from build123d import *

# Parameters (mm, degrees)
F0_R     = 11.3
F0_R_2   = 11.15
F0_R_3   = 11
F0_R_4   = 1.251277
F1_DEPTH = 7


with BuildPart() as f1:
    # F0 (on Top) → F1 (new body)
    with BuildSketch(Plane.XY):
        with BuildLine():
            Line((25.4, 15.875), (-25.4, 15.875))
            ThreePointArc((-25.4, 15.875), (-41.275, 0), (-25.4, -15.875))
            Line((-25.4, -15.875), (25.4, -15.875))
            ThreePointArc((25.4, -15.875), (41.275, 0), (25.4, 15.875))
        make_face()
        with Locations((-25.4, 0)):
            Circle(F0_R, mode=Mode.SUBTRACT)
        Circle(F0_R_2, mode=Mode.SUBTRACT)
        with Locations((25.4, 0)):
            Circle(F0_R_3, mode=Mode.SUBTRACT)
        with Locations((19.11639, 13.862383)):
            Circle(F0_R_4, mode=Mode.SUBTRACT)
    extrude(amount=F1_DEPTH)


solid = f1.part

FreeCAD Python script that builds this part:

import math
import FreeCAD as App
import Part
import Sketcher
from FreeCAD import Vector

doc = App.newDocument("Part")
body = doc.addObject("PartDesign::Body", "Body")

# Sketch on XY plane
sketch1 = body.newObject("Sketcher::SketchObject", "Sketch")
sketch1.AttachmentSupport = (doc.getObject("XY_Plane"), [""])
sketch1.MapMode = "FlatFace"
sketch1.addGeometry([
    Part.LineSegment(Vector(25.4, 15.9, 0), Vector(-25.4, 15.9, 0)),  # 0
    Part.ArcOfCircle(Part.Circle(Vector(-25.4, 0, 0), Vector(0, 0, 1), 15.9), math.radians(90), math.radians(270)),  # 1
    Part.LineSegment(Vector(-25.4, -15.9, 0), Vector(25.4, -15.9, 0)),  # 2
    Part.ArcOfCircle(Part.Circle(Vector(25.4, 0, 0), Vector(0, 0, 1), 15.9), math.radians(-90), math.radians(90)),  # 3
    Part.Circle(Vector(-25.4, 0, 0), Vector(0, 0, 1), 11.3),  # 4
    Part.Circle(Vector(0, 0, 0), Vector(0, 0, 1), 11.2),  # 5
    Part.Circle(Vector(25.4, 0, 0), Vector(0, 0, 1), 11),  # 6
    Part.Circle(Vector(19.1, 13.9, 0), Vector(0, 0, 1), 1.3),  # 7
], False)
sketch1.addConstraint([
    Sketcher.Constraint("Tangent", 0, 2, 1, 1),
    Sketcher.Constraint("Tangent", 1, 2, 2, 1),
    Sketcher.Constraint("Tangent", 2, 2, 3, 1),
    Sketcher.Constraint("Tangent", 3, 2, 0, 1),
    Sketcher.Constraint("Horizontal", 0),
    Sketcher.Constraint("Horizontal", 2),
    Sketcher.Constraint("Coincident", 5, 3, -1, 1),
    Sketcher.Constraint("Coincident", 4, 3, 1, 3),
    Sketcher.Constraint("Coincident", 6, 3, 3, 3),
    Sketcher.Constraint("Symmetric", 1, 3, 3, 3, -1, 1),
    Sketcher.Constraint("Diameter", 6, 22.0),
    Sketcher.Constraint("Diameter", 4, 22.6),
    Sketcher.Constraint("Diameter", 5, 22.3),
    Sketcher.Constraint("DistanceX", 0, 2, 0, 1, 50.8),
    Sketcher.Constraint("Radius", 1, 15.875),
    Sketcher.Constraint("Diameter", 7, 2.502554),
    Sketcher.Constraint("DistanceX", -1, 1, 7, 3, 19.11639),
    Sketcher.Constraint("DistanceY", -1, 1, 7, 3, 13.862383),
])
pad1 = body.newObject("PartDesign::Pad", "Pad")
pad1.Profile = sketch1
pad1.Length = 7

doc.recompute()
